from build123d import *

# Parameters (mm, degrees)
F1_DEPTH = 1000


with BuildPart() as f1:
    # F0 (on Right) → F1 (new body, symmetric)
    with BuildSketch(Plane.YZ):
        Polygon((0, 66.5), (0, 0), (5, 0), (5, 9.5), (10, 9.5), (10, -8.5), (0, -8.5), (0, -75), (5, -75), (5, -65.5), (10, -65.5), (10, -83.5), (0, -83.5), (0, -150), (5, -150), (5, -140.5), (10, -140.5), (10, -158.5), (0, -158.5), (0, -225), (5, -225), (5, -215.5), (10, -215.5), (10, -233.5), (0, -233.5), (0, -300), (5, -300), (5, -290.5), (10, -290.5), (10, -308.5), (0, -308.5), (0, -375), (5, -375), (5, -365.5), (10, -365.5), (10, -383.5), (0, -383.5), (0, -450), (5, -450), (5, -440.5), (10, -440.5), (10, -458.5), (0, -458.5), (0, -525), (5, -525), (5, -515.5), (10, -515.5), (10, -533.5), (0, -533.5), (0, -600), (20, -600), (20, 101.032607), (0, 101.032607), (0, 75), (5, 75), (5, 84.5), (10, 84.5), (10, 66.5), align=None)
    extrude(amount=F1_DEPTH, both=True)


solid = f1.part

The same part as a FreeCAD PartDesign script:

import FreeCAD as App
import Part
import Sketcher

V = App.Vector

doc = App.newDocument("Part")
body = doc.addObject("PartDesign::Body", "Body")

sketch1 = body.newObject("Sketcher::SketchObject", "Sketch")
sketch1.AttachmentSupport = (doc.getObject("YZ_Plane"), [""])
sketch1.MapMode = "FlatFace"
sketch1.addGeometry([
    Part.LineSegment(V(0, 66, 0), V(0, 0, 0)),
    Part.LineSegment(V(0, 0, 0), V(5, 0, 0)),
    Part.LineSegment(V(5, 0, 0), V(5, 10, 0)),
    Part.LineSegment(V(5, 10, 0), V(10, 10, 0)),
    Part.LineSegment(V(10, 10, 0), V(10, -8, 0)),
    Part.LineSegment(V(10, -8, 0), V(0, -8, 0)),
    Part.LineSegment(V(0, -8, 0), V(0, -75, 0)),
    Part.LineSegment(V(0, -75, 0), V(5, -75, 0)),
    Part.LineSegment(V(5, -75, 0), V(5, -66, 0)),
    Part.LineSegment(V(5, -66, 0), V(10, -66, 0)),
    Part.LineSegment(V(10, -66, 0), V(10, -84, 0)),
    Part.LineSegment(V(10, -84, 0), V(0, -84, 0)),
    Part.LineSegment(V(0, -84, 0), V(0, -150, 0)),
    Part.LineSegment(V(0, -150, 0), V(5, -150, 0)),
    Part.LineSegment(V(5, -150, 0), V(5, -140, 0)),
    Part.LineSegment(V(5, -140, 0), V(10, -140, 0)),
    Part.LineSegment(V(10, -140, 0), V(10, -158, 0)),
    Part.LineSegment(V(10, -158, 0), V(0, -158, 0)),
    Part.LineSegment(V(0, -158, 0), V(0, -225, 0)),
    Part.LineSegment(V(0, -225, 0), V(5, -225, 0)),
    Part.LineSegment(V(5, -225, 0), V(5, -216, 0)),
    Part.LineSegment(V(5, -216, 0), V(10, -216, 0)),
    Part.LineSegment(V(10, -216, 0), V(10, -234, 0)),
    Part.LineSegment(V(10, -234, 0), V(0, -234, 0)),
    Part.LineSegment(V(0, -234, 0), V(0, -300, 0)),
    Part.LineSegment(V(0, -300, 0), V(5, -300, 0)),
    Part.LineSegment(V(5, -300, 0), V(5, -290, 0)),
    Part.LineSegment(V(5, -290, 0), V(10, -290, 0)),
    Part.LineSegment(V(10, -290, 0), V(10, -308, 0)),
    Part.LineSegment(V(10, -308, 0), V(0, -308, 0)),
    Part.LineSegment(V(0, -308, 0), V(0, -375, 0)),
    Part.LineSegment(V(0, -375, 0), V(5, -375, 0)),
    Part.LineSegment(V(5, -375, 0), V(5, -366, 0)),
    Part.LineSegment(V(5, -366, 0), V(10, -366, 0)),
    Part.LineSegment(V(10, -366, 0), V(10, -384, 0)),
    Part.LineSegment(V(10, -384, 0), V(0, -384, 0)),
    Part.LineSegment(V(0, -384, 0), V(0, -450, 0)),
    Part.LineSegment(V(0, -450, 0), V(5, -450, 0)),
    Part.LineSegment(V(5, -450, 0), V(5, -440, 0)),
    Part.LineSegment(V(5, -440, 0), V(10, -440, 0)),
    Part.LineSegment(V(10, -440, 0), V(10, -458, 0)),
    Part.LineSegment(V(10, -458, 0), V(0, -458, 0)),
    Part.LineSegment(V(0, -458, 0), V(0, -525, 0)),
    Part.LineSegment(V(0, -525, 0), V(5, -525, 0)),
    Part.LineSegment(V(5, -525, 0), V(5, -516, 0)),
    Part.LineSegment(V(5, -516, 0), V(10, -516, 0)),
    Part.LineSegment(V(10, -516, 0), V(10, -534, 0)),
    Part.LineSegment(V(10, -534, 0), V(0, -534, 0)),
    Part.LineSegment(V(0, -534, 0), V(0, -600, 0)),
    Part.LineSegment(V(0, -600, 0), V(20, -600, 0)),
    Part.LineSegment(V(20, -600, 0), V(20, 101, 0)),
    Part.LineSegment(V(20, 101, 0), V(0, 101, 0)),
    Part.LineSegment(V(0, 101, 0), V(0, 75, 0)),
    Part.LineSegment(V(0, 75, 0), V(5, 75, 0)),
    Part.LineSegment(V(5, 75, 0), V(5, 84, 0)),
    Part.LineSegment(V(5, 84, 0), V(10, 84, 0)),
    Part.LineSegment(V(10, 84, 0), V(10, 66, 0)),
    Part.LineSegment(V(10, 66, 0), V(0, 66, 0)),
], False)
sketch1.addConstraint([
    Sketcher.Constraint("Coincident", 0, 2, 1, 1),
    Sketcher.Constraint("Coincident", 1, 2, 2, 1),
    Sketcher.Constraint("Coincident", 2, 2, 3, 1),
    Sketcher.Constraint("Coincident", 3, 2, 4, 1),
    Sketcher.Constraint("Coincident", 4, 2, 5, 1),
    Sketcher.Constraint("Coincident", 5, 2, 6, 1),
    Sketcher.Constraint("Coincident", 6, 2, 7, 1),
    Sketcher.Constraint("Coincident", 7, 2, 8, 1),
    Sketcher.Constraint("Coincident", 8, 2, 9, 1),
    Sketcher.Constraint("Coincident", 9, 2, 10, 1),
    Sketcher.Constraint("Coincident", 10, 2, 11, 1),
    Sketcher.Constraint("Coincident", 11, 2, 12, 1),
    Sketcher.Constraint("Coincident", 12, 2, 13, 1),
    Sketcher.Constraint("Coincident", 13, 2, 14, 1),
    Sketcher.Constraint("Coincident", 14, 2, 15, 1),
    Sketcher.Constraint("Coincident", 15, 2, 16, 1),
    Sketcher.Constraint("Coincident", 16, 2, 17, 1),
    Sketcher.Constraint("Coincident", 17, 2, 18, 1),
    Sketcher.Constraint("Coincident", 18, 2, 19, 1),
    Sketcher.Constraint("Coincident", 19, 2, 20, 1),
    Sketcher.Constraint("Coincident", 20, 2, 21, 1),
    Sketcher.Constraint("Coincident", 21, 2, 22, 1),
    Sketcher.Constraint("Coincident", 22, 2, 23, 1),
    Sketcher.Constraint("Coincident", 23, 2, 24, 1),
    Sketcher.Constraint("Coincident", 24, 2, 25, 1),
    Sketcher.Constraint("Coincident", 25, 2, 26, 1),
    Sketcher.Constraint("Coincident", 26, 2, 27, 1),
    Sketcher.Constraint("Coincident", 27, 2, 28, 1),
    Sketcher.Constraint("Coincident", 28, 2, 29, 1),
    Sketcher.Constraint("Coincident", 29, 2, 30, 1),
    Sketcher.Constraint("Coincident", 30, 2, 31, 1),
    Sketcher.Constraint("Coincident", 31, 2, 32, 1),
    Sketcher.Constraint("Coincident", 32, 2, 33, 1),
    Sketcher.Constraint("Coincident", 33, 2, 34, 1),
    Sketcher.Constraint("Coincident", 34, 2, 35, 1),
    Sketcher.Constraint("Coincident", 35, 2, 36, 1),
    Sketcher.Constraint("Coincident", 36, 2, 37, 1),
    Sketcher.Constraint("Coincident", 37, 2, 38, 1),
    Sketcher.Constraint("Coincident", 38, 2, 39, 1),
    Sketcher.Constraint("Coincident", 39, 2, 40, 1),
    Sketcher.Constraint("Coincident", 40, 2, 41, 1),
    Sketcher.Constraint("Coincident", 41, 2, 42, 1),
    Sketcher.Constraint("Coincident", 42, 2, 43, 1),
    Sketcher.Constraint("Coincident", 43, 2, 44, 1),
    Sketcher.Constraint("Coincident", 44, 2, 45, 1),
    Sketcher.Constraint("Coincident", 45, 2, 46, 1),
    Sketcher.Constraint("Coincident", 46, 2, 47, 1),
    Sketcher.Constraint("Coincident", 47, 2, 48, 1),
    Sketcher.Constraint("Coincident", 48, 2, 49, 1),
    Sketcher.Constraint("Coincident", 49, 2, 50, 1),
    Sketcher.Constraint("Coincident", 50, 2, 51, 1),
    Sketcher.Constraint("Coincident", 51, 2, 52, 1),
    Sketcher.Constraint("Coincident", 52, 2, 53, 1),
    Sketcher.Constraint("Coincident", 53, 2, 54, 1),
    Sketcher.Constraint("Coincident", 54, 2, 55, 1),
    Sketcher.Constraint("Coincident", 55, 2, 56, 1),
    Sketcher.Constraint("Coincident", 56, 2, 57, 1),
    Sketcher.Constraint("Coincident", 57, 2, 0, 1),
    Sketcher.Constraint("Vertical", 0),
    Sketcher.Constraint("Horizontal", 1),
    Sketcher.Constraint("Vertical", 2),
    Sketcher.Constraint("Horizontal", 3),
    Sketcher.Constraint("Vertical", 4),
    Sketcher.Constraint("Horizontal", 5),
    Sketcher.Constraint("Vertical", 6),
    Sketcher.Constraint("Horizontal", 7),
    Sketcher.Constraint("Vertical", 8),
    Sketcher.Constraint("Horizontal", 9),
    Sketcher.Constraint("Vertical", 10),
    Sketcher.Constraint("Horizontal", 11),
    Sketcher.Constraint("Vertical", 12),
    Sketcher.Constraint("Horizontal", 13),
    Sketcher.Constraint("Vertical", 14),
    Sketcher.Constraint("Horizontal", 15),
    Sketcher.Constraint("Vertical", 16),
    Sketcher.Constraint("Horizontal", 17),
    Sketcher.Constraint("Vertical", 18),
    Sketcher.Constraint("Horizontal", 19),
    Sketcher.Constraint("Vertical", 20),
    Sketcher.Constraint("Horizontal", 21),
    Sketcher.Constraint("Vertical", 22),
    Sketcher.Constraint("Horizontal", 23),
    Sketcher.Constraint("Vertical", 24),
    Sketcher.Constraint("Horizontal", 25),
    Sketcher.Constraint("Vertical", 26),
    Sketcher.Constraint("Horizontal", 27),
    Sketcher.Constraint("Vertical", 28),
    Sketcher.Constraint("Horizontal", 29),
    Sketcher.Constraint("Vertical", 30),
    Sketcher.Constraint("Horizontal", 31),
    Sketcher.Constraint("Vertical", 32),
    Sketcher.Constraint("Horizontal", 33),
    Sketcher.Constraint("Vertical", 34),
    Sketcher.Constraint("Horizontal", 35),
    Sketcher.Constraint("Vertical", 36),
    Sketcher.Constraint("Horizontal", 37),
    Sketcher.Constraint("Vertical", 38),
    Sketcher.Constraint("Horizontal", 39),
    Sketcher.Constraint("Vertical", 40),
    Sketcher.Constraint("Horizontal", 41),
    Sketcher.Constraint("Vertical", 42),
    Sketcher.Constraint("Horizontal", 43),
    Sketcher.Constraint("Vertical", 44),
    Sketcher.Constraint("Horizontal", 45),
    Sketcher.Constraint("Vertical", 46),
    Sketcher.Constraint("Horizontal", 47),
    Sketcher.Constraint("Vertical", 48),
    Sketcher.Constraint("Horizontal", 49),
    Sketcher.Constraint("Vertical", 50),
    Sketcher.Constraint("Horizontal", 51),
    Sketcher.Constraint("Vertical", 52),
    Sketcher.Constraint("Horizontal", 53),
    Sketcher.Constraint("Vertical", 54),
    Sketcher.Constraint("Horizontal", 55),
    Sketcher.Constraint("Vertical", 56),
    Sketcher.Constraint("Horizontal", 57),
    Sketcher.Constraint("Coincident", 0, 2, -1, 1),
    Sketcher.Constraint("Symmetric", 6, 2, 52, 2, -1, 1),
    Sketcher.Constraint("PointOnObject", 5, 2, -2),
    Sketcher.Constraint("PointOnObject", 11, 2, -2),
    Sketcher.Constraint("PointOnObject", 17, 2, -2),
    Sketcher.Constraint("PointOnObject", 23, 2, -2),
    Sketcher.Constraint("PointOnObject", 29, 2, -2),
    Sketcher.Constraint("PointOnObject", 35, 2, -2),
    Sketcher.Constraint("PointOnObject", 41, 2, -2),
    Sketcher.Constraint("PointOnObject", 47, 2, -2),
    Sketcher.Constraint("Vertical", 2, 2, 7, 2),
    Sketcher.Constraint("Vertical", 4, 2, 9, 2),
    Sketcher.Constraint("Vertical", 8, 2, 13, 2),
    Sketcher.Constraint("Vertical", 10, 2, 15, 2),
    Sketcher.Constraint("Vertical", 14, 2, 19, 2),
    Sketcher.Constraint("Vertical", 16, 2, 21, 2),
    Sketcher.Constraint("Vertical", 20, 2, 25, 2),
    Sketcher.Constraint("Vertical", 22, 2, 27, 2),
    Sketcher.Constraint("Vertical", 26, 2, 31, 2),
    Sketcher.Constraint("Vertical", 28, 2, 33, 2),
    Sketcher.Constraint("Vertical", 32, 2, 37, 2),
    Sketcher.Constraint("Vertical", 34, 2, 39, 2),
    Sketcher.Constraint("Vertical", 38, 2, 43, 2),
    Sketcher.Constraint("Vertical", 40, 2, 45, 2),
    Sketcher.Constraint("Vertical", 44, 2, 53, 2),
    Sketcher.Constraint("Vertical", 46, 2, 55, 2),
    Sketcher.Constraint("Equal", 1, 3),
    Sketcher.Constraint("Equal", 0, 6),
    Sketcher.Constraint("Equal", 2, 8),
    Sketcher.Constraint("Equal", 4, 10),
    Sketcher.Constraint("Equal", 6, 12),
    Sketcher.Constraint("Equal", 8, 14),
    Sketcher.Constraint("Equal", 10, 16),
    Sketcher.Constraint("Equal", 12, 18),
    Sketcher.Constraint("Equal", 14, 20),
    Sketcher.Constraint("Equal", 16, 22),
    Sketcher.Constraint("Equal", 18, 24),
    Sketcher.Constraint("Equal", 20, 26),
    Sketcher.Constraint("Equal", 22, 28),
    Sketcher.Constraint("Equal", 24, 30),
    Sketcher.Constraint("Equal", 26, 32),
    Sketcher.Constraint("Equal", 28, 34),
    Sketcher.Constraint("Equal", 30, 36),
    Sketcher.Constraint("Equal", 32, 38),
    Sketcher.Constraint("Equal", 34, 40),
    Sketcher.Constraint("Equal", 36, 42),
    Sketcher.Constraint("Equal", 38, 44),
    Sketcher.Constraint("Equal", 40, 46),
    Sketcher.Constraint("Equal", 42, 48),
    Sketcher.Constraint("Equal", 44, 54),
    Sketcher.Constraint("DistanceX", 1, 1, 1, 2, 5.0),
    Sketcher.Constraint("DistanceX", 49, 1, 49, 2, 20.0),
    Sketcher.Constraint("DistanceY", 4, 2, 4, 1, 18.0),
    Sketcher.Constraint("DistanceY", 0, 2, 0, 1, 66.5),
    Sketcher.Constraint("DistanceY", 2, 1, 2, 2, 9.5),
    Sketcher.Constraint("DistanceY", 50, 1, 50, 2, 701.032607),
])
pad1 = body.newObject("PartDesign::Pad", "Pad")
pad1.Profile = sketch1
pad1.Length = 2000
pad1.Midplane = True

doc.recompute()
